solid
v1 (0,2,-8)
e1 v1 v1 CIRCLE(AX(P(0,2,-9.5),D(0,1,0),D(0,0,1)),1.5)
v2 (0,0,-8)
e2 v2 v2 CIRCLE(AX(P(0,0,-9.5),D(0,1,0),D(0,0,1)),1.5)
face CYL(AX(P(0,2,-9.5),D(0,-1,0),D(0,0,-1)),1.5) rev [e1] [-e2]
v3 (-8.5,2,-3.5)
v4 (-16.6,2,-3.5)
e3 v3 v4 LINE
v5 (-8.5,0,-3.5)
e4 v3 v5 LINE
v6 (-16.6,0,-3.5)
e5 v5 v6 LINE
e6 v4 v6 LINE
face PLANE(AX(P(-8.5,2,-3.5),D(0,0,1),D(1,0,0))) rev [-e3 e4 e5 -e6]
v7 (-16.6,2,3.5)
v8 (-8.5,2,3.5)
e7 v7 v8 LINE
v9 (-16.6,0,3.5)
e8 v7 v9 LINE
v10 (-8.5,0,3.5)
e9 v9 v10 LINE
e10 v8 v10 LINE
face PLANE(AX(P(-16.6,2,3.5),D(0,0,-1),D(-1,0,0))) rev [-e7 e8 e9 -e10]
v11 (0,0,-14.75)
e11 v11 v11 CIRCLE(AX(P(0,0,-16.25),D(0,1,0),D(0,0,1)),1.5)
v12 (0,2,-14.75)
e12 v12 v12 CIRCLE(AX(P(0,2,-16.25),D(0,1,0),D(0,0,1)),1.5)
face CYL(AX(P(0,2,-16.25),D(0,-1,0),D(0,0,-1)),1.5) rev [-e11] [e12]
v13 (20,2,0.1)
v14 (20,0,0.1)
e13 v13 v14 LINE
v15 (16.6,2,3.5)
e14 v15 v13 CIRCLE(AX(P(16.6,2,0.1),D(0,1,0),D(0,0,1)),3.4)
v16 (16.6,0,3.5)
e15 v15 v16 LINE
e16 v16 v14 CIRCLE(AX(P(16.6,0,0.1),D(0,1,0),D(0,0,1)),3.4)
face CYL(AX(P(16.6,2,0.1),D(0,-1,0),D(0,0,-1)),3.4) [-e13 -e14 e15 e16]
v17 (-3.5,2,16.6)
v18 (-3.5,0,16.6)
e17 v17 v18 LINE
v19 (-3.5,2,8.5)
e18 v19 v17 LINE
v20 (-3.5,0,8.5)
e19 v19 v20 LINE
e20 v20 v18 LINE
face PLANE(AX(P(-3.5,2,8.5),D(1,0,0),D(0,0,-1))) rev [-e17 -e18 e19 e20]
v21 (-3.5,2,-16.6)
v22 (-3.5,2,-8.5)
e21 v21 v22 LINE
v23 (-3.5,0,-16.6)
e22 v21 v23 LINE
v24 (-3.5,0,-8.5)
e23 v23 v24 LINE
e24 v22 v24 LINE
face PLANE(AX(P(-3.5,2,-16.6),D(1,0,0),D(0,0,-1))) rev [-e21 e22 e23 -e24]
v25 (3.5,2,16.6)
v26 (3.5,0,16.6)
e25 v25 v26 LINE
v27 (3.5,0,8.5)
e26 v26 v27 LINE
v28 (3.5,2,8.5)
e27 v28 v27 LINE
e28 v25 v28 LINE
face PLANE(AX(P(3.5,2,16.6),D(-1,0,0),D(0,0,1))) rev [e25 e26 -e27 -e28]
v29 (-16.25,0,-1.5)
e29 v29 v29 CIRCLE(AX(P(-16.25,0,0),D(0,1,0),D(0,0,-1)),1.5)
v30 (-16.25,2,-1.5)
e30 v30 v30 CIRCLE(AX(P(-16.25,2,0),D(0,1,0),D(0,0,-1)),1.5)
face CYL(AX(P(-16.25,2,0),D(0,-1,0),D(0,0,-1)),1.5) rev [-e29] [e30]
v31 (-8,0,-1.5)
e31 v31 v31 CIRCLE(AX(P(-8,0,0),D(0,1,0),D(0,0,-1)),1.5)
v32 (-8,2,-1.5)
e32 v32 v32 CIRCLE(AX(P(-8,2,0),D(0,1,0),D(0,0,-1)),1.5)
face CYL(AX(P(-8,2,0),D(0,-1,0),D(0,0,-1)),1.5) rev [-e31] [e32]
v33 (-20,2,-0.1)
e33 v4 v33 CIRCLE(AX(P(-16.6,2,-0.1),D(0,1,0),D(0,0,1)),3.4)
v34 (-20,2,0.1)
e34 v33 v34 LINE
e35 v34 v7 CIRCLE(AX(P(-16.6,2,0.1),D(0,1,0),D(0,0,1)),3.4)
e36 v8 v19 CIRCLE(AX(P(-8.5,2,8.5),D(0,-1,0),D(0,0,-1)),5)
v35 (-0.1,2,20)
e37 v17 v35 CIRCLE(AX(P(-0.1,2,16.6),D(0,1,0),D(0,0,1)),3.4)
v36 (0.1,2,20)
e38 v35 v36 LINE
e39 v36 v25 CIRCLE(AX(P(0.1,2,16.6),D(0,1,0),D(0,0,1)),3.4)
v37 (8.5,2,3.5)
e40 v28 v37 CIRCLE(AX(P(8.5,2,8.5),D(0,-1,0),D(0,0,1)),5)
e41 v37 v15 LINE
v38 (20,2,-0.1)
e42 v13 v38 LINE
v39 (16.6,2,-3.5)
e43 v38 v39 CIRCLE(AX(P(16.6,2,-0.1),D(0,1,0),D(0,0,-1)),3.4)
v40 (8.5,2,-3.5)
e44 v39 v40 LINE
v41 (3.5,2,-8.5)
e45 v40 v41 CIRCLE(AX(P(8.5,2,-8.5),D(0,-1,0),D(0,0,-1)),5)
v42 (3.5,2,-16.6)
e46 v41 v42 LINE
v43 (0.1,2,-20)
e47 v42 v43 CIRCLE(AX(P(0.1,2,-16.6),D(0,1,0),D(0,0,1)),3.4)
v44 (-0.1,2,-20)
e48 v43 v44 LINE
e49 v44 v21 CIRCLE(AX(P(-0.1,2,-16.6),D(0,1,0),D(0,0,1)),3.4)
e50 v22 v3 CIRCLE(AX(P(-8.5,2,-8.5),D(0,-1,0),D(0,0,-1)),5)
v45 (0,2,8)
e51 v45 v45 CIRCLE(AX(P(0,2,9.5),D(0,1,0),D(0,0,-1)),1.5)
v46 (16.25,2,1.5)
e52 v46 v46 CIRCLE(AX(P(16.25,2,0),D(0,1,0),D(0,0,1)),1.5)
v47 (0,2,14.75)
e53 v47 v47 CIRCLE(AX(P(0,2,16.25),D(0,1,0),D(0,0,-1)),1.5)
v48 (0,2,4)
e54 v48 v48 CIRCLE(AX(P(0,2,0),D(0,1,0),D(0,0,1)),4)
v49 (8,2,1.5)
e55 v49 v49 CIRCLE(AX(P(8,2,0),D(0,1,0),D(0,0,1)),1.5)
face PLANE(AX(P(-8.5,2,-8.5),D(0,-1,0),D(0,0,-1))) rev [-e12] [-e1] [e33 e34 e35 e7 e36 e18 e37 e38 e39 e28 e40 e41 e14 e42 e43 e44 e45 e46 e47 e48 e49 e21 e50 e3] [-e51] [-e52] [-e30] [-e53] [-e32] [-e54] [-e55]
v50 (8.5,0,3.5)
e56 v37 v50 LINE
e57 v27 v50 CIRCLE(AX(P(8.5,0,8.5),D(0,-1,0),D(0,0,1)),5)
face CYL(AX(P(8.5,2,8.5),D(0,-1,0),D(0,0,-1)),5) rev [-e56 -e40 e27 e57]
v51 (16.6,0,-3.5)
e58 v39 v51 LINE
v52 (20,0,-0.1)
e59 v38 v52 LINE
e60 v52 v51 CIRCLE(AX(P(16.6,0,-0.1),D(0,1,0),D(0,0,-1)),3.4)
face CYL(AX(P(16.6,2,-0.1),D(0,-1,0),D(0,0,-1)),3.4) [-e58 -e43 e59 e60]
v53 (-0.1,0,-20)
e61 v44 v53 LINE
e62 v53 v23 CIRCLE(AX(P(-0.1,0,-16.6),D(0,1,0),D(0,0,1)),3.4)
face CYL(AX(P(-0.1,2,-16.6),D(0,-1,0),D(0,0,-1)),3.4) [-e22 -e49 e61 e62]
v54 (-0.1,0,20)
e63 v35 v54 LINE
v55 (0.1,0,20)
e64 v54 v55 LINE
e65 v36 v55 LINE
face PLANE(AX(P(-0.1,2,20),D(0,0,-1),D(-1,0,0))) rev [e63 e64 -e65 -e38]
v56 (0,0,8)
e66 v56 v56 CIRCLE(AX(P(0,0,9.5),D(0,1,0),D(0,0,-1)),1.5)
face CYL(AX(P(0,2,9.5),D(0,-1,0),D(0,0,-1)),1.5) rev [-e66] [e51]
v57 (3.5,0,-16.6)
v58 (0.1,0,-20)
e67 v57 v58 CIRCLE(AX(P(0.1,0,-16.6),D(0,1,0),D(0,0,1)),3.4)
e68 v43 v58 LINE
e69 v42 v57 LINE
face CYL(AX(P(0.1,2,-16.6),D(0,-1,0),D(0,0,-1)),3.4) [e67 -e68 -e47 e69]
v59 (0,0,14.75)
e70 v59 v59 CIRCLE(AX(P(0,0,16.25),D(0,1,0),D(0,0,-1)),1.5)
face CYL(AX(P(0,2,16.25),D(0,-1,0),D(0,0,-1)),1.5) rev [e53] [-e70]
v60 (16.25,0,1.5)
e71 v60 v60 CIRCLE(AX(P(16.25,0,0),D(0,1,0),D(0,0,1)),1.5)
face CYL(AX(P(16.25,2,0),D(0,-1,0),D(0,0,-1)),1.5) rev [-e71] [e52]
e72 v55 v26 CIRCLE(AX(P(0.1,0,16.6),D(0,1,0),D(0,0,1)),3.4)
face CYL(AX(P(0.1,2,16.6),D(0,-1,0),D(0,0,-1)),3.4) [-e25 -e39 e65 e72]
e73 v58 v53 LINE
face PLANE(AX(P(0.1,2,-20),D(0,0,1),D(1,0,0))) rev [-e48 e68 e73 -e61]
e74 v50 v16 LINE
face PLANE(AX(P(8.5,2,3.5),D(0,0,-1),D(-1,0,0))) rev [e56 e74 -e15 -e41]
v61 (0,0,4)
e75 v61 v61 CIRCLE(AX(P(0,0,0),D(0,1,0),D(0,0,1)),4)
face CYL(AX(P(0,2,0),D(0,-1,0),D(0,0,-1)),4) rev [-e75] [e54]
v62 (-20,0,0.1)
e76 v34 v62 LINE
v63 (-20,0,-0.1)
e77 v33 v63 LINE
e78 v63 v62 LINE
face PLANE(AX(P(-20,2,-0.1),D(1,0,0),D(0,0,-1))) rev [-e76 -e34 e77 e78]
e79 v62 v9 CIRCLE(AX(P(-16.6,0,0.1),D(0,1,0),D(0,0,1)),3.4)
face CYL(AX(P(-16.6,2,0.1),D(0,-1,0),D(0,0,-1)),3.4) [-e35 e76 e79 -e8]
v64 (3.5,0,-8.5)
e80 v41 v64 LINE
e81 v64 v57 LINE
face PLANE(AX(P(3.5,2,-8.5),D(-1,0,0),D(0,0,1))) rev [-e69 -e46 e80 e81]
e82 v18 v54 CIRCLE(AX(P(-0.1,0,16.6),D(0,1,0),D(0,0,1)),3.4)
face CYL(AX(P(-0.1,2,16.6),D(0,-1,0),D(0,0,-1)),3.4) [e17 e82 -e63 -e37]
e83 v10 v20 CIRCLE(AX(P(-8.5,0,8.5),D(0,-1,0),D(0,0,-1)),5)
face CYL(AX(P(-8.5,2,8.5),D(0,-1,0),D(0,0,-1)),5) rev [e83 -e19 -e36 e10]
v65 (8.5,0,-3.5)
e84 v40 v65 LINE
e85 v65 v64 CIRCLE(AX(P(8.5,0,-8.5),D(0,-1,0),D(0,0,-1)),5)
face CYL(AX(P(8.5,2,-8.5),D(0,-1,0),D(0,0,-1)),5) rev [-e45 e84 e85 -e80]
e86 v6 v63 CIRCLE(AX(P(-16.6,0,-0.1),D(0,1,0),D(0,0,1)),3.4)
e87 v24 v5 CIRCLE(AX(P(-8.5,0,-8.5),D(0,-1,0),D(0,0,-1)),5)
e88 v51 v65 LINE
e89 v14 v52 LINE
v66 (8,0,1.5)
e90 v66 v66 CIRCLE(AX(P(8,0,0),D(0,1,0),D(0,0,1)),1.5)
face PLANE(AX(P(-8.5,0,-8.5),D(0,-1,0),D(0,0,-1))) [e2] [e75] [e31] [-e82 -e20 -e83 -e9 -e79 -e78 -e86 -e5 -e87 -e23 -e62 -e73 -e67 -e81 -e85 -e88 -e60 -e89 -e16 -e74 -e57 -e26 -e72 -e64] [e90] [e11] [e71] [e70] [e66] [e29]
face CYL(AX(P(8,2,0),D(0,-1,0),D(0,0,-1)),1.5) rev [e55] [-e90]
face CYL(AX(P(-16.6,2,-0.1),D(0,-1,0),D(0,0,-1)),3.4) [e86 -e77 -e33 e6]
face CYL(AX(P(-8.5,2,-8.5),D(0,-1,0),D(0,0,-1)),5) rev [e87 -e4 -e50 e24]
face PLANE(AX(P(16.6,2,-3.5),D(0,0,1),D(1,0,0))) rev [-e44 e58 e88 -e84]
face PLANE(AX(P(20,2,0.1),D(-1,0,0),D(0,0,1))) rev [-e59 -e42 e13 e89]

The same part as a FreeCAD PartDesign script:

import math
import FreeCAD as App
import Part
import Sketcher

V = App.Vector

doc = App.newDocument("Part")
body = doc.addObject("PartDesign::Body", "Body")

# Sketch on XZ plane
sketch1 = doc.addObject("Sketcher::SketchObject", "Sketch")
body.addObject(sketch1)
sketch1.AttachmentSupport = (doc.XZ_Plane, [""])
sketch1.MapMode = "FlatFace"
sketch1.addGeometry(Part.LineSegment(V(16.6, -3.5, 0), V(8.5, -3.5, 0)), False)
sketch1.addGeometry(Part.ArcOfCircle(Part.Circle(V(8.5, -8.5, 0), V(0, 0, 1), 5), math.radians(90), math.radians(180)), False)
sketch1.addGeometry(Part.LineSegment(V(3.5, -8.5, 0), V(3.5, -16.6, 0)), False)
sketch1.addGeometry(Part.ArcOfCircle(Part.Circle(V(0.1, -16.6, 0), V(0, 0, 1), 3.4), math.radians(-90), math.radians(0)), False)
sketch1.addGeometry(Part.LineSegment(V(0.1, -20, 0), V(-0.1, -20, 0)), False)
sketch1.addGeometry(Part.ArcOfCircle(Part.Circle(V(-0.1, -16.6, 0), V(0, 0, 1), 3.4), math.radians(180), math.radians(270)), False)
sketch1.addGeometry(Part.LineSegment(V(-3.5, -16.6, 0), V(-3.5, -8.5, 0)), False)
sketch1.addGeometry(Part.ArcOfCircle(Part.Circle(V(-8.5, -8.5, 0), V(0, 0, 1), 5), math.radians(0), math.radians(90)), False)
sketch1.addGeometry(Part.LineSegment(V(-8.5, -3.5, 0), V(-16.6, -3.5, 0)), False)
sketch1.addGeometry(Part.ArcOfCircle(Part.Circle(V(-16.6, -0.1, 0), V(0, 0, 1), 3.4), math.radians(180), math.radians(270)), False)
sketch1.addGeometry(Part.LineSegment(V(-20, -0.1, 0), V(-20, 0.1, 0)), False)
sketch1.addGeometry(Part.ArcOfCircle(Part.Circle(V(-16.6, 0.1, 0), V(0, 0, 1), 3.4), math.radians(90), math.radians(180)), False)
sketch1.addGeometry(Part.LineSegment(V(-16.6, 3.5, 0), V(-8.5, 3.5, 0)), False)
sketch1.addGeometry(Part.ArcOfCircle(Part.Circle(V(-8.5, 8.5, 0), V(0, 0, 1), 5), math.radians(-90), math.radians(0)), False)
sketch1.addGeometry(Part.LineSegment(V(-3.5, 8.5, 0), V(-3.5, 16.6, 0)), False)
sketch1.addGeometry(Part.ArcOfCircle(Part.Circle(V(-0.1, 16.6, 0), V(0, 0, 1), 3.4), math.radians(90), math.radians(180)), False)
sketch1.addGeometry(Part.LineSegment(V(-0.1, 20, 0), V(0.1, 20, 0)), False)
sketch1.addGeometry(Part.ArcOfCircle(Part.Circle(V(0.1, 16.6, 0), V(0, 0, 1), 3.4), math.radians(0), math.radians(90)), False)
sketch1.addGeometry(Part.LineSegment(V(3.5, 16.6, 0), V(3.5, 8.5, 0)), False)
sketch1.addGeometry(Part.ArcOfCircle(Part.Circle(V(8.5, 8.5, 0), V(0, 0, 1), 5), math.radians(180), math.radians(270)), False)
sketch1.addGeometry(Part.LineSegment(V(8.5, 3.5, 0), V(16.6, 3.5, 0)), False)
sketch1.addGeometry(Part.ArcOfCircle(Part.Circle(V(16.6, 0.1, 0), V(0, 0, 1), 3.4), math.radians(0), math.radians(90)), False)
sketch1.addGeometry(Part.LineSegment(V(20, 0.1, 0), V(20, -0.1, 0)), False)
sketch1.addGeometry(Part.ArcOfCircle(Part.Circle(V(16.6, -0.1, 0), V(0, 0, 1), 3.4), math.radians(-90), math.radians(0)), False)
sketch1.addGeometry(Part.Circle(V(0, 16.25, 0), V(0, 0, 1), 1.5), False)
sketch1.addGeometry(Part.Circle(V(0, 9.5, 0), V(0, 0, 1), 1.5), False)
sketch1.addGeometry(Part.Circle(V(-16.25, 0, 0), V(0, 0, 1), 1.5), False)
sketch1.addGeometry(Part.Circle(V(-8, 0, 0), V(0, 0, 1), 1.5), False)
sketch1.addGeometry(Part.Circle(V(0, 0, 0), V(0, 0, 1), 4), False)
sketch1.addGeometry(Part.Circle(V(8, 0, 0), V(0, 0, 1), 1.5), False)
sketch1.addGeometry(Part.Circle(V(16.25, 0, 0), V(0, 0, 1), 1.5), False)
sketch1.addGeometry(Part.Circle(V(0, -9.5, 0), V(0, 0, 1), 1.5), False)
sketch1.addGeometry(Part.Circle(V(0, -16.25, 0), V(0, 0, 1), 1.5), False)
sketch1.addConstraint(Sketcher.Constraint("Tangent", 0, 2, 1, 1))
sketch1.addConstraint(Sketcher.Constraint("Tangent", 1, 2, 2, 1))
sketch1.addConstraint(Sketcher.Constraint("Tangent", 2, 2, 3, 2))
sketch1.addConstraint(Sketcher.Constraint("Tangent", 3, 1, 4, 1))
sketch1.addConstraint(Sketcher.Constraint("Tangent", 4, 2, 5, 2))
sketch1.addConstraint(Sketcher.Constraint("Tangent", 5, 1, 6, 1))
sketch1.addConstraint(Sketcher.Constraint("Tangent", 6, 2, 7, 1))
sketch1.addConstraint(Sketcher.Constraint("Tangent", 7, 2, 8, 1))
sketch1.addConstraint(Sketcher.Constraint("Tangent", 8, 2, 9, 2))
sketch1.addConstraint(Sketcher.Constraint("Tangent", 9, 1, 10, 1))
sketch1.addConstraint(Sketcher.Constraint("Tangent", 10, 2, 11, 2))
sketch1.addConstraint(Sketcher.Constraint("Tangent", 11, 1, 12, 1))
sketch1.addConstraint(Sketcher.Constraint("Tangent", 12, 2, 13, 1))
sketch1.addConstraint(Sketcher.Constraint("Tangent", 13, 2, 14, 1))
sketch1.addConstraint(Sketcher.Constraint("Tangent", 14, 2, 15, 2))
sketch1.addConstraint(Sketcher.Constraint("Tangent", 15, 1, 16, 1))
sketch1.addConstraint(Sketcher.Constraint("Tangent", 16, 2, 17, 2))
sketch1.addConstraint(Sketcher.Constraint("Tangent", 17, 1, 18, 1))
sketch1.addConstraint(Sketcher.Constraint("Tangent", 18, 2, 19, 1))
sketch1.addConstraint(Sketcher.Constraint("Tangent", 19, 2, 20, 1))
sketch1.addConstraint(Sketcher.Constraint("Tangent", 20, 2, 21, 2))
sketch1.addConstraint(Sketcher.Constraint("Tangent", 21, 1, 22, 1))
sketch1.addConstraint(Sketcher.Constraint("Tangent", 22, 2, 23, 2))
sketch1.addConstraint(Sketcher.Constraint("Tangent", 23, 1, 0, 1))
sketch1.addConstraint(Sketcher.Constraint("Horizontal", 0))
sketch1.addConstraint(Sketcher.Constraint("Vertical", 2))
sketch1.addConstraint(Sketcher.Constraint("Horizontal", 4))
sketch1.addConstraint(Sketcher.Constraint("Vertical", 6))
sketch1.addConstraint(Sketcher.Constraint("Horizontal", 8))
sketch1.addConstraint(Sketcher.Constraint("Vertical", 10))
sketch1.addConstraint(Sketcher.Constraint("Horizontal", 12))
sketch1.addConstraint(Sketcher.Constraint("Vertical", 14))
sketch1.addConstraint(Sketcher.Constraint("Horizontal", 16))
sketch1.addConstraint(Sketcher.Constraint("Vertical", 18))
sketch1.addConstraint(Sketcher.Constraint("Horizontal", 20))
sketch1.addConstraint(Sketcher.Constraint("Vertical", 22))
sketch1.addConstraint(Sketcher.Constraint("Coincident", 28, 3, -1, 1))
sketch1.addConstraint(Sketcher.Constraint("Equal", 3, 5))
sketch1.addConstraint(Sketcher.Constraint("Equal", 1, 7))
sketch1.addConstraint(Sketcher.Constraint("Equal", 5, 9))
sketch1.addConstraint(Sketcher.Constraint("Equal", 9, 11))
sketch1.addConstraint(Sketcher.Constraint("Equal", 7, 13))
sketch1.addConstraint(Sketcher.Constraint("Equal", 11, 15))
sketch1.addConstraint(Sketcher.Constraint("Equal", 15, 17))
sketch1.addConstraint(Sketcher.Constraint("Equal", 13, 19))
sketch1.addConstraint(Sketcher.Constraint("Equal", 17, 21))
sketch1.addConstraint(Sketcher.Constraint("Equal", 21, 23))
sketch1.addConstraint(Sketcher.Constraint("Equal", 24, 25))
sketch1.addConstraint(Sketcher.Constraint("Equal", 25, 26))
sketch1.addConstraint(Sketcher.Constraint("Equal", 26, 27))
sketch1.addConstraint(Sketcher.Constraint("Equal", 27, 29))
sketch1.addConstraint(Sketcher.Constraint("Equal", 29, 30))
sketch1.addConstraint(Sketcher.Constraint("Equal", 30, 31))
sketch1.addConstraint(Sketcher.Constraint("Equal", 31, 32))
sketch1.addConstraint(Sketcher.Constraint("Symmetric", 1, 3, 13, 3, -1, 1))
sketch1.addConstraint(Sketcher.Constraint("Symmetric", 5, 3, 17, 3, -1, 1))
sketch1.addConstraint(Sketcher.Constraint("Symmetric", 9, 3, 21, 3, -1, 1))
sketch1.addConstraint(Sketcher.Constraint("Symmetric", 27, 3, 29, 3, -1, 1))
sketch1.addConstraint(Sketcher.Constraint("Symmetric", 26, 3, 30, 3, -1, 1))
sketch1.addConstraint(Sketcher.Constraint("Symmetric", 25, 3, 31, 3, -1, 1))
sketch1.addConstraint(Sketcher.Constraint("Symmetric", 24, 3, 32, 3, -1, 1))
sketch1.addConstraint(Sketcher.Constraint("Symmetric", 1, 3, 7, 3, -2))
sketch1.addConstraint(Sketcher.Constraint("PointOnObject", 24, 3, -2))
sketch1.addConstraint(Sketcher.Constraint("PointOnObject", 25, 3, -2))
sketch1.addConstraint(Sketcher.Constraint("PointOnObject", 26, 3, -1))
sketch1.addConstraint(Sketcher.Constraint("PointOnObject", 27, 3, -1))
sketch1.addConstraint(Sketcher.Constraint("Equal", 20, 2))
sketch1.addConstraint(Sketcher.Constraint("Equal", 16, 10))
sketch1.addConstraint(Sketcher.Constraint("Diameter", 24, 3.0))
sketch1.addConstraint(Sketcher.Constraint("Diameter", 28, 8.0))
sketch1.addConstraint(Sketcher.Constraint("Radius", 1, 5.0))
sketch1.addConstraint(Sketcher.Constraint("Radius", 3, 3.4))
sketch1.addConstraint(Sketcher.Constraint("DistanceX", 0, 2, 0, 1, 8.1))
sketch1.addConstraint(Sketcher.Constraint("DistanceX", 4, 2, 4, 1, 0.2))
sketch1.addConstraint(Sketcher.Constraint("DistanceX", 27, 3, -1, 1, 8.0))
sketch1.addConstraint(Sketcher.Constraint("DistanceY", 13, 3, 25, 3, 1.0))
sketch1.addConstraint(Sketcher.Constraint("DistanceY", -1, 1, 24, 3, 16.25))
sketch1.addConstraint(Sketcher.Constraint("DistanceX", 26, 3, -1, 1, 16.25))
pad1 = doc.addObject("PartDesign::Pad", "Pad")
body.addObject(pad1)
pad1.Profile = sketch1
pad1.Length = 2
pad1.Reversed = True

doc.recompute()
